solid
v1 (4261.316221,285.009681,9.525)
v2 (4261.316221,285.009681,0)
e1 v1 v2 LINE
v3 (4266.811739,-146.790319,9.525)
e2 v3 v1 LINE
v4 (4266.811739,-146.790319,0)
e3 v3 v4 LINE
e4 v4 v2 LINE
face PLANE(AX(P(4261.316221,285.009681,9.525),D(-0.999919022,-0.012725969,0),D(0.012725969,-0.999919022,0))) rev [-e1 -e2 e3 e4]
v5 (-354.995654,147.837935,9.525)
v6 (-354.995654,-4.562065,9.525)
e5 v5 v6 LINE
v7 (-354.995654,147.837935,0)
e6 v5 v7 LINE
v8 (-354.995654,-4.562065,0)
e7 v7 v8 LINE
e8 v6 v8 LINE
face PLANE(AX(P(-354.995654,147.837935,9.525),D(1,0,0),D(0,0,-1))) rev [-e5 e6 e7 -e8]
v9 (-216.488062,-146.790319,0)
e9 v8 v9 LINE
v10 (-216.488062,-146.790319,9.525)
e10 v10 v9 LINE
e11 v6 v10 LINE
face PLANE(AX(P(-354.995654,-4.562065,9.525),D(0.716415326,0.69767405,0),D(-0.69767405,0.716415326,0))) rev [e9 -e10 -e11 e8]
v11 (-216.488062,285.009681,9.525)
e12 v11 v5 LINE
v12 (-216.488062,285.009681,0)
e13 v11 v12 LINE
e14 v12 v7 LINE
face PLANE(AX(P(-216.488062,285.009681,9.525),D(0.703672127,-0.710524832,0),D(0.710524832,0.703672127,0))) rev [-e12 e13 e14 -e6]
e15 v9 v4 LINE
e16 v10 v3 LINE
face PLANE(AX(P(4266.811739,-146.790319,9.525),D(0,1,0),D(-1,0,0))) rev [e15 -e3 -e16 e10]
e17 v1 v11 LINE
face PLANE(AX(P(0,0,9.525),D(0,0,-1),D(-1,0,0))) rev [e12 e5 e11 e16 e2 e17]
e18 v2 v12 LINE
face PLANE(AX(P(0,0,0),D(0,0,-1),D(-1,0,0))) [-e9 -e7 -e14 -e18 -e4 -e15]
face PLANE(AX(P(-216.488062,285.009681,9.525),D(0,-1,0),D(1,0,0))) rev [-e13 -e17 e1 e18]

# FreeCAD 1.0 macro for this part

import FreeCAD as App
import Part
import Sketcher
from FreeCAD import Vector
Q = App.Units.Quantity

doc = App.newDocument("Part")
body = doc.addObject("PartDesign::Body", "Body")

sketch1 = body.newObject("Sketcher::SketchObject", "Sketch")
sketch1.AttachmentSupport = (doc.getObject("XY_Plane"), [""])
sketch1.MapMode = "FlatFace"
sketch1.addGeometry([
    Part.LineSegment(Vector(-216.488062, -146.790319, 0), Vector(4266.811739, -146.790319, 0)),
    Part.LineSegment(Vector(4266.811739, -146.790319, 0), Vector(4261.316221, 285.009681, 0)),
    Part.LineSegment(Vector(4261.316221, 285.009681, 0), Vector(-216.488062, 285.009681, 0)),
    Part.LineSegment(Vector(-216.488062, 285.009681, 0), Vector(-354.995654, 147.837935, 0)),
    Part.LineSegment(Vector(-354.995654, 147.837935, 0), Vector(-354.995654, -4.562065, 0)),
    Part.LineSegment(Vector(-354.995654, -4.562065, 0), Vector(-216.488062, -146.790319, 0)),
], False)
sketch1.addConstraint([
    Sketcher.Constraint("Coincident", 0, 2, 1, 1),
    Sketcher.Constraint("Coincident", 1, 2, 2, 1),
    Sketcher.Constraint("Coincident", 2, 2, 3, 1),
    Sketcher.Constraint("Coincident", 3, 2, 4, 1),
    Sketcher.Constraint("Coincident", 4, 2, 5, 1),
    Sketcher.Constraint("Coincident", 5, 2, 0, 1),
    Sketcher.Constraint("Horizontal", 0),
    Sketcher.Constraint("Horizontal", 2),
    Sketcher.Constraint("Vertical", 4),
    Sketcher.Constraint("Vertical", 2, 2, 5, 2),
    Sketcher.Constraint("DistanceY", 4, 2, 4, 1, Q("6 in")),
    Sketcher.Constraint("DistanceY", 0, 2, 1, 2, Q("17 in")),
    Sketcher.Constraint("DistanceX", 0, 1, 0, 2, 4483.299801),
    Sketcher.Constraint("Distance", 1, 431.834969),
    Sketcher.Constraint("Distance", 3, 194.937018),
    Sketcher.Constraint("DistanceX", -1, 1, 0, 2, 4266.811739),
    Sketcher.Constraint("DistanceY", 0, 2, -1, 1, 146.790319),
    Sketcher.Constraint("Distance", 5, 198.527654),
])
pad1 = body.newObject("PartDesign::Pad", "Pad")
pad1.Profile = sketch1
pad1.Length = Q("0.375 in")

doc.recompute()
